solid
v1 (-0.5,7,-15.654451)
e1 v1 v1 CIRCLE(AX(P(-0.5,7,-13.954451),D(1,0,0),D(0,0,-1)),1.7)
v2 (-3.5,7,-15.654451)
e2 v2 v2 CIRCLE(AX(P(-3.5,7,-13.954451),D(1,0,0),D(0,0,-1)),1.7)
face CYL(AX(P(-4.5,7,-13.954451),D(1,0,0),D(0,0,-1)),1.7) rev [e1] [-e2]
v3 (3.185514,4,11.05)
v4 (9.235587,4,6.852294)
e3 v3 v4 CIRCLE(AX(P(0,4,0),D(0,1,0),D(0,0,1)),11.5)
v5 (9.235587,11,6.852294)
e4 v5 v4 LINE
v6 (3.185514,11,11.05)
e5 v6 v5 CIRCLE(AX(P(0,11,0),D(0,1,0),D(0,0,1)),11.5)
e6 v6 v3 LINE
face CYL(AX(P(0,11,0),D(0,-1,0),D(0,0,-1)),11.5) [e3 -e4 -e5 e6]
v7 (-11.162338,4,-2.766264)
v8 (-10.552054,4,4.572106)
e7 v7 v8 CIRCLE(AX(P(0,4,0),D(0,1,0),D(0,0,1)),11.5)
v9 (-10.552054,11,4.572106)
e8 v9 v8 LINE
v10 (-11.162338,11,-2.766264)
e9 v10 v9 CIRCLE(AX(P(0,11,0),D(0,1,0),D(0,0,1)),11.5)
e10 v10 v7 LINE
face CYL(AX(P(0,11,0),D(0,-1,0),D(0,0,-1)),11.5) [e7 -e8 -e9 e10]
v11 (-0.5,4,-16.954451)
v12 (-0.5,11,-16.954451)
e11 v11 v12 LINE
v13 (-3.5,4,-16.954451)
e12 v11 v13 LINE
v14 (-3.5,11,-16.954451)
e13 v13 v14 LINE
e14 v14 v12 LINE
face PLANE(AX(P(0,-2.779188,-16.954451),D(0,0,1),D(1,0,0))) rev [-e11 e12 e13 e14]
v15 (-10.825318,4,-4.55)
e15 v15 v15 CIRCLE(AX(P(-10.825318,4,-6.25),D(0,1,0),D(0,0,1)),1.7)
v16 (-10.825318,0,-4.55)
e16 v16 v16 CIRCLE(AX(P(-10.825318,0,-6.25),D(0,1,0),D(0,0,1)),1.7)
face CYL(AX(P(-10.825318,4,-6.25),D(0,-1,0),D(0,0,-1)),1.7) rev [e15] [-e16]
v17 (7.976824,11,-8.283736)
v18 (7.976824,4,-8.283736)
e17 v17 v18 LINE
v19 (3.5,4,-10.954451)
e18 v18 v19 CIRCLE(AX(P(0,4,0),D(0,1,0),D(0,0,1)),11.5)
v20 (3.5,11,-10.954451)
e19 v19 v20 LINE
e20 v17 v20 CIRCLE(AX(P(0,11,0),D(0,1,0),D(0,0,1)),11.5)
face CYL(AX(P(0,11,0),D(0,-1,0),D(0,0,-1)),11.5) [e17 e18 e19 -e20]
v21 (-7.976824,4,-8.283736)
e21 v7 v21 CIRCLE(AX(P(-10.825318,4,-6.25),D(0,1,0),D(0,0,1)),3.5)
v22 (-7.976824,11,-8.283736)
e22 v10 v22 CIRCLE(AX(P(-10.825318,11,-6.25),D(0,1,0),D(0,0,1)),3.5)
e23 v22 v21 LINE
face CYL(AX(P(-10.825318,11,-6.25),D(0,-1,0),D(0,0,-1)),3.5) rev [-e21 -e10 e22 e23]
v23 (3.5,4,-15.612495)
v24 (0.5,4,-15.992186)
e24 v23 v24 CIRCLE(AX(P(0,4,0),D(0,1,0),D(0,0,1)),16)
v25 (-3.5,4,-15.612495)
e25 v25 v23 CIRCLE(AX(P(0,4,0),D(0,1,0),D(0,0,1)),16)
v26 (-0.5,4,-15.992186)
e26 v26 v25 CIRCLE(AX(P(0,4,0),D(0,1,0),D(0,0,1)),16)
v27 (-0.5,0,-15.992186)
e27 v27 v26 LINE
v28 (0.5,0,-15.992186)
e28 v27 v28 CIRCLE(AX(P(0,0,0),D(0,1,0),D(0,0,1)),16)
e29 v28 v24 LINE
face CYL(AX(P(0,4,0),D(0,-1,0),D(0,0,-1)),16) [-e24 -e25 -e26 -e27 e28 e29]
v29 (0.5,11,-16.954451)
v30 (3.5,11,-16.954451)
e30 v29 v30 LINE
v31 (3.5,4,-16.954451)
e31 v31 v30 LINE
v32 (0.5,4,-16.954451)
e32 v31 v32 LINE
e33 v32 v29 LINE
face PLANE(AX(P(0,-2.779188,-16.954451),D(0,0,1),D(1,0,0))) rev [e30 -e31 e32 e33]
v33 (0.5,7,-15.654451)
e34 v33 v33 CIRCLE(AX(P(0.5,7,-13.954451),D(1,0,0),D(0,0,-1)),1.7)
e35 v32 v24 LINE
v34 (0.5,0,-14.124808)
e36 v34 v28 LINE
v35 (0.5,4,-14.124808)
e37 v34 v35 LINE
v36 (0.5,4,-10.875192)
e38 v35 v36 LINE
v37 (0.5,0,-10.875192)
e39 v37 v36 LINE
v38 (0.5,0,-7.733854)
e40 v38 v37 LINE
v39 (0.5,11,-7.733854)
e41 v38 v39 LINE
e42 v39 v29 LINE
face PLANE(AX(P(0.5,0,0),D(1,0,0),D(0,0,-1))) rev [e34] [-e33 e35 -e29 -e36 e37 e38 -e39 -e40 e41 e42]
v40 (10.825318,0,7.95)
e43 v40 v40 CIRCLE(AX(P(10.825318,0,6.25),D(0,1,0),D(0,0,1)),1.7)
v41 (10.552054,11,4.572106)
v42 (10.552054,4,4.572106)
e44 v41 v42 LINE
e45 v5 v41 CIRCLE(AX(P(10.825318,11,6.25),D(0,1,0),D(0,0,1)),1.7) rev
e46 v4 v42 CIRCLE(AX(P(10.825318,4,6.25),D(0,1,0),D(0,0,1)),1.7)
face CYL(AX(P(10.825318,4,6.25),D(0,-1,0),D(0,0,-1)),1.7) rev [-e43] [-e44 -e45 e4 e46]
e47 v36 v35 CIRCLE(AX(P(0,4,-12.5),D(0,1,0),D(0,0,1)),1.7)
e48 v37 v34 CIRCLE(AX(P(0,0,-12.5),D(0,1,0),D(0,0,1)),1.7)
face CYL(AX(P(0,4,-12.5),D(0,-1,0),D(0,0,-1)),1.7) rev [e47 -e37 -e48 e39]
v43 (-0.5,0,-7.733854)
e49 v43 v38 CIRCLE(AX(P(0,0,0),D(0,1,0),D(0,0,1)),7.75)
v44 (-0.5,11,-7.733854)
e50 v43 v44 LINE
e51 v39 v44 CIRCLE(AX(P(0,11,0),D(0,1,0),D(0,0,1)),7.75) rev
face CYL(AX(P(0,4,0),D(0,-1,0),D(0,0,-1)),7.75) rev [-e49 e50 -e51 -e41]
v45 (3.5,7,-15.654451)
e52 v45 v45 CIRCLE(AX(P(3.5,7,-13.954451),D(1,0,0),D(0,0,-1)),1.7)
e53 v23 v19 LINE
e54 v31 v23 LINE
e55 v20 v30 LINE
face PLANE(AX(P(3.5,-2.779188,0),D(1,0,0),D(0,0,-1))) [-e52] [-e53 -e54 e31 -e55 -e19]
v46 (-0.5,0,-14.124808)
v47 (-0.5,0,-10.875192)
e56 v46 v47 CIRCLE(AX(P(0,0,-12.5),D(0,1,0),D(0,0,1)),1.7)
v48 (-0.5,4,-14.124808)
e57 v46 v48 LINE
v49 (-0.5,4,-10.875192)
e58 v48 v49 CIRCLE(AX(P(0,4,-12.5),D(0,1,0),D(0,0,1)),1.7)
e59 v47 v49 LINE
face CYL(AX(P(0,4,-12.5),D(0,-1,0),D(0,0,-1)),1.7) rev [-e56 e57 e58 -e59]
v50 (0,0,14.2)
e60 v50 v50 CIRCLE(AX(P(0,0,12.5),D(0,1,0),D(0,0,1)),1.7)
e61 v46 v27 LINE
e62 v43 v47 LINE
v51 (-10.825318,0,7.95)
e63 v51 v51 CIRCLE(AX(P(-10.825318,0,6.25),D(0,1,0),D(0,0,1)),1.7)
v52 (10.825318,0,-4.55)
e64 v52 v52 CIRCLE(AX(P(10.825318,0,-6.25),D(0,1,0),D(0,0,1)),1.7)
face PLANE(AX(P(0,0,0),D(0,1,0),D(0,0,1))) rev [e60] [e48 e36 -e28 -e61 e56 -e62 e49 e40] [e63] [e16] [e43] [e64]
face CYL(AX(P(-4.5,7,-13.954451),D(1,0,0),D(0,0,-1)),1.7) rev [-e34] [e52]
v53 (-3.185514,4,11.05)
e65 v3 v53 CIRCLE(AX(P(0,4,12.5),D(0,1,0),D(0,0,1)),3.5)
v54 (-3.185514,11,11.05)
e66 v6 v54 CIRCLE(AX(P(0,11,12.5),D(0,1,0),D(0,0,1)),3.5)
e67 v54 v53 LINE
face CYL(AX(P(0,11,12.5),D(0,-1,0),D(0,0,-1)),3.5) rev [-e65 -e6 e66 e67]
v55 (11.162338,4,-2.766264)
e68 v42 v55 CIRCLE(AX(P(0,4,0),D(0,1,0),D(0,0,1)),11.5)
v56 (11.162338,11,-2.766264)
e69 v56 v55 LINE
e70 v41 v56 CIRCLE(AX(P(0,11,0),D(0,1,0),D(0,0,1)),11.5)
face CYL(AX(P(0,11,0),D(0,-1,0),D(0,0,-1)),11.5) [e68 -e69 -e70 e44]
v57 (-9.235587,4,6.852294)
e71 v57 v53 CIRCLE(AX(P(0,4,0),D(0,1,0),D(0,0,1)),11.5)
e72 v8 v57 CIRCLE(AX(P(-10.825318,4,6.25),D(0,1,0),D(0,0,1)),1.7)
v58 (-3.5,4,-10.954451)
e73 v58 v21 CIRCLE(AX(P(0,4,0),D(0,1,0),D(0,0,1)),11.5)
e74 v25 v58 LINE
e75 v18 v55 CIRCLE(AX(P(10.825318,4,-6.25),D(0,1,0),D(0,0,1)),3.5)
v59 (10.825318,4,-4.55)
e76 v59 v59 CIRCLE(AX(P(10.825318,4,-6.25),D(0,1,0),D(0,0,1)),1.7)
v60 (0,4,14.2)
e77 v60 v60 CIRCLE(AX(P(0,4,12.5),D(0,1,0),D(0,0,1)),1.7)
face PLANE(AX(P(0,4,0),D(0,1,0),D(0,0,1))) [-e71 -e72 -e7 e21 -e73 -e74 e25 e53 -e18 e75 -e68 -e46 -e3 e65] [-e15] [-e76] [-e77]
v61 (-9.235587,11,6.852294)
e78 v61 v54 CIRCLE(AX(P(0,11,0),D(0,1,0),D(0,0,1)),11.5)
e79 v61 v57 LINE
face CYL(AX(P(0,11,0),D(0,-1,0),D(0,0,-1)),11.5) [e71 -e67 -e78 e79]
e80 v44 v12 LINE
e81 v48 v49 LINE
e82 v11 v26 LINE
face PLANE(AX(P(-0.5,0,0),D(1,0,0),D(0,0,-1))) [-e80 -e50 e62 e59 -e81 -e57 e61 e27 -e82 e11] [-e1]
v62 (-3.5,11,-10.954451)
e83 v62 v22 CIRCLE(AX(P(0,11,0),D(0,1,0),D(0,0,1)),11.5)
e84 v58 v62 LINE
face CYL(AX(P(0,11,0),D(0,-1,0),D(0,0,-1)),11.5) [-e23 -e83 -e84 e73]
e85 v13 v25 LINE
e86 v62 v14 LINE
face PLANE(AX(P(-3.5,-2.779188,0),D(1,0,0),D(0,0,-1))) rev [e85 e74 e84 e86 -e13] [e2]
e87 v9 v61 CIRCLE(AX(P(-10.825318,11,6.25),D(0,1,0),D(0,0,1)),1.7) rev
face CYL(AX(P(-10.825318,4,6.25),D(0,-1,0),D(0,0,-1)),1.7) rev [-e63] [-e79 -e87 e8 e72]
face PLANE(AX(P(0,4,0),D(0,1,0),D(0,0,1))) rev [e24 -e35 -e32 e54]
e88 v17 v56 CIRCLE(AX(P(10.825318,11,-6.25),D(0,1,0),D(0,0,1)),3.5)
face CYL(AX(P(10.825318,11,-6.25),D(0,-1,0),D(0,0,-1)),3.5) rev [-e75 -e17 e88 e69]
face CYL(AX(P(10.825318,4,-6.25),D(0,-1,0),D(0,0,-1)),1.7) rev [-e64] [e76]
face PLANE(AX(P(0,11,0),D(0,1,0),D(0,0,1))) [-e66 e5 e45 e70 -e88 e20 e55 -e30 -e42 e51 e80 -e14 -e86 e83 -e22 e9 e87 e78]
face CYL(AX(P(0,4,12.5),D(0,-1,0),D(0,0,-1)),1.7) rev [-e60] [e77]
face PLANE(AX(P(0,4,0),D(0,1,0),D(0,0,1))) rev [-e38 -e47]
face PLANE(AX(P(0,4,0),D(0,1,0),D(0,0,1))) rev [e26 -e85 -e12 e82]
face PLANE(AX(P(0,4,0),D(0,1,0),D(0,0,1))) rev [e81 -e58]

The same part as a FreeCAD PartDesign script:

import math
import FreeCAD as App
import Part
import Sketcher

V = App.Vector

doc = App.newDocument("Part")
params = doc.addObject("Spreadsheet::Sheet", "Params")
for row, (alias, value) in enumerate([
    ("sketch1_diameter", "32 mm"),
    ("sketch1_diameter2", "3.4 mm"),
    ("sketch1_diameter3", "15.5 mm"),
    ("pad1_length", "4 mm"),
    ("sketch2_diameter", "15.5 mm"),
    ("sketch2_radius", "3.5 mm"),
    ("sketch2_radius2", "11.5 mm"),
    ("sketch2_radius3", "1.7 mm"),
    ("pad2_length", "7 mm"),
    ("sketch3_radius", "1.7 mm"),
    ("sketch3_width", "1 mm"),
    ("sketch3_radius2", "7.75 mm"),
    ("pocket1_length", "11 mm"),
    ("sketch4_radius", "11.5 mm"),
    ("sketch4_radius2", "1.7 mm"),
    ("sketch4_width", "3 mm"),
    ("sketch4_height", "6 mm"),
    ("pad3_length", "7 mm"),
    ("sketch5_diameter", "3.4 mm"),
    ("pocket2_length", "8 mm"),
], start=1):
    params.set(f"A{row}", alias)
    params.set(f"B{row}", "=" + value)
    params.setAlias(f"B{row}", alias)

body = doc.addObject("PartDesign::Body", "Body")

# Sketch on XZ plane
sketch1 = doc.addObject("Sketcher::SketchObject", "Sketch")
body.addObject(sketch1)
sketch1.AttachmentSupport = (doc.XZ_Plane, [""])
sketch1.MapMode = "FlatFace"
sketch1.addGeometry([
    Part.Circle(V(0, 0, 0), V(0, 0, 1), 16),  # 0
    Part.Circle(V(-10.825318, -6.25, 0), V(0, 0, 1), 1.7),  # 1
    Part.Circle(V(0, -12.5, 0), V(0, 0, 1), 1.7),  # 2
    Part.Circle(V(-10.825318, 6.25, 0), V(0, 0, 1), 1.7),  # 3
    Part.Circle(V(10.825318, -6.25, 0), V(0, 0, 1), 1.7),  # 4
    Part.Circle(V(0, 0, 0), V(0, 0, 1), 7.75),  # 5
    Part.Circle(V(0, 12.5, 0), V(0, 0, 1), 1.7),  # 6
    Part.Circle(V(10.825318, 6.25, 0), V(0, 0, 1), 1.7),  # 7
], False)
sketch1.addConstraint([
    Sketcher.Constraint("Coincident", 0, 3, -1, 1),
    Sketcher.Constraint("Coincident", 5, 3, -1, 1),
    Sketcher.Constraint("Equal", 1, 2),
    Sketcher.Constraint("Equal", 2, 3),
    Sketcher.Constraint("Equal", 3, 4),
    Sketcher.Constraint("Equal", 4, 6),
    Sketcher.Constraint("Equal", 6, 7),
    Sketcher.Constraint("Symmetric", 3, 3, 4, 3, -1, 1),
    Sketcher.Constraint("Symmetric", 2, 3, 6, 3, -1, 1),
    Sketcher.Constraint("Symmetric", 1, 3, 7, 3, -1, 1),
    Sketcher.Constraint("Symmetric", 1, 3, 4, 3, -2),
    Sketcher.Constraint("PointOnObject", 2, 3, -2),
    Sketcher.Constraint("Diameter", 0, 32.0),
    Sketcher.Constraint("Diameter", 1, 3.4),
    Sketcher.Constraint("Diameter", 5, 15.5),
    Sketcher.Constraint("DistanceY", 2, 3, -1, 1, 12.5),
    Sketcher.Constraint("DistanceY", 1, 3, 3, 3, 12.5),
    Sketcher.Constraint("DistanceX", 1, 3, -1, 1, 10.825318),
])
sketch1.setExpression("Constraints[12]", "Params.sketch1_diameter")
sketch1.setExpression("Constraints[13]", "Params.sketch1_diameter2")
sketch1.setExpression("Constraints[14]", "Params.sketch1_diameter3")
pad1 = doc.addObject("PartDesign::Pad", "Pad")
body.addObject(pad1)
pad1.Profile = sketch1
pad1.setExpression("Length", "Params.pad1_length")
pad1.Reversed = True

# Sketch on XZ plane
sketch2 = doc.addObject("Sketcher::SketchObject", "Sketch001")
body.addObject(sketch2)
sketch2.AttachmentSupport = (doc.XZ_Plane, [""])
sketch2.MapMode = "FlatFace"
sketch2.AttachmentOffset = App.Placement(V(0, 0, -4), App.Rotation())
sketch2.addGeometry([
    Part.ArcOfCircle(Part.Circle(V(0, 12.5, 0), V(0, 0, 1), 3.5), math.radians(-155.525657), math.radians(-24.474343)),  # 0
    Part.ArcOfCircle(Part.Circle(V(0, 0, 0), V(0, 0, 1), 11.5), math.radians(36.573366), math.radians(73.91869)),  # 1
    Part.ArcOfCircle(Part.Circle(V(10.825318, 6.25, 0), V(0, 0, 1), 1.7), math.radians(159.250041), math.radians(260.749959)),  # 2
    Part.ArcOfCircle(Part.Circle(V(0, 0, 0), V(0, 0, 1), 11.5), math.radians(0), math.radians(23.426634)),  # 3
    Part.ArcOfCircle(Part.Circle(V(0, 0, 0), V(0, 0, 1), 11.5), math.radians(-13.91869), math.radians(0)),  # 4
    Part.ArcOfCircle(Part.Circle(V(10.825318, -6.25, 0), V(0, 0, 1), 3.5), math.radians(84.474343), math.radians(215.525657)),  # 5
    Part.ArcOfCircle(Part.Circle(V(0, 0, 0), V(0, 0, 1), 11.5), math.radians(-83.426634), math.radians(-46.08131)),  # 6
    Part.ArcOfCircle(Part.Circle(V(0, -12.5, 0), V(0, 0, 1), 1.7), math.radians(39.250041), math.radians(140.749959)),  # 7
    Part.ArcOfCircle(Part.Circle(V(0, 0, 0), V(0, 0, 1), 11.5), math.radians(-133.91869), math.radians(-96.573366)),  # 8
    Part.ArcOfCircle(Part.Circle(V(-10.825318, -6.25, 0), V(0, 0, 1), 3.5), math.radians(-35.525657), math.radians(0)),  # 9
    Part.ArcOfCircle(Part.Circle(V(-10.825318, -6.25, 0), V(0, 0, 1), 3.5), math.radians(0), math.radians(95.525657)),  # 10
    Part.ArcOfCircle(Part.Circle(V(0, 0, 0), V(0, 0, 1), 11.5), math.radians(156.573366), math.radians(193.91869)),  # 11
    Part.ArcOfCircle(Part.Circle(V(-10.825318, 6.25, 0), V(0, 0, 1), 1.7), math.radians(-80.749959), math.radians(0)),  # 12
    Part.ArcOfCircle(Part.Circle(V(-10.825318, 6.25, 0), V(0, 0, 1), 1.7), math.radians(0), math.radians(20.749959)),  # 13
    Part.ArcOfCircle(Part.Circle(V(0, 0, 0), V(0, 0, 1), 11.5), math.radians(106.08131), math.radians(143.426634)),  # 14
    Part.Circle(V(0, 0, 0), V(0, 0, 1), 7.75),  # 15
], False)
sketch2.addConstraint([
    Sketcher.Constraint("Coincident", 0, 2, 1, 2),
    Sketcher.Constraint("Coincident", 1, 1, 2, 1),
    Sketcher.Constraint("Coincident", 2, 2, 3, 2),
    Sketcher.Constraint("Tangent", 3, 1, 4, 2),
    Sketcher.Constraint("Coincident", 4, 1, 5, 1),
    Sketcher.Constraint("Coincident", 5, 2, 6, 2),
    Sketcher.Constraint("Coincident", 6, 1, 7, 1),
    Sketcher.Constraint("Coincident", 7, 2, 8, 2),
    Sketcher.Constraint("Coincident", 8, 1, 9, 1),
    Sketcher.Constraint("Tangent", 9, 2, 10, 1),
    Sketcher.Constraint("Coincident", 10, 2, 11, 2),
    Sketcher.Constraint("Coincident", 11, 1, 12, 1),
    Sketcher.Constraint("Tangent", 12, 2, 13, 1),
    Sketcher.Constraint("Coincident", 13, 2, 14, 2),
    Sketcher.Constraint("Coincident", 14, 1, 0, 1),
    Sketcher.Constraint("Coincident", 1, 3, -1, 1),
    Sketcher.Constraint("Coincident", 3, 3, -1, 1),
    Sketcher.Constraint("Coincident", 6, 3, -1, 1),
    Sketcher.Constraint("Coincident", 8, 3, -1, 1),
    Sketcher.Constraint("Coincident", 11, 3, -1, 1),
    Sketcher.Constraint("Coincident", 14, 3, -1, 1),
    Sketcher.Constraint("Coincident", 15, 3, -1, 1),
    Sketcher.Constraint("Equal", 1, 3),
    Sketcher.Constraint("Equal", 3, 4),
    Sketcher.Constraint("Equal", 0, 5),
    Sketcher.Constraint("Equal", 4, 6),
    Sketcher.Constraint("Equal", 2, 7),
    Sketcher.Constraint("Equal", 6, 8),
    Sketcher.Constraint("Equal", 5, 9),
    Sketcher.Constraint("Equal", 9, 10),
    Sketcher.Constraint("Equal", 8, 11),
    Sketcher.Constraint("Equal", 7, 12),
    Sketcher.Constraint("Equal", 12, 13),
    Sketcher.Constraint("Equal", 11, 14),
    Sketcher.Constraint("Symmetric", 0, 3, 7, 3, -1, 1),
    Sketcher.Constraint("Symmetric", 2, 3, 9, 3, -1, 1),
    Sketcher.Constraint("Symmetric", 5, 3, 12, 3, -1, 1),
    Sketcher.Constraint("Symmetric", 5, 3, 9, 3, -2),
    Sketcher.Constraint("PointOnObject", 0, 3, -2),
    Sketcher.Constraint("PointOnObject", 3, 1, -1),
    Sketcher.Constraint("Horizontal", 10, 3, 9, 2),
    Sketcher.Constraint("Horizontal", 13, 3, 12, 2),
    Sketcher.Constraint("Diameter", 15, 15.5),
    Sketcher.Constraint("Radius", 0, 3.5),
    Sketcher.Constraint("Radius", 1, 11.5),
    Sketcher.Constraint("Radius", 2, 1.7),
    Sketcher.Constraint("DistanceY", -1, 1, 0, 3, 12.5),
    Sketcher.Constraint("DistanceY", 5, 3, 2, 3, 12.5),
    Sketcher.Constraint("DistanceX", 1, 1, 2, 3, 1.58973),
])
sketch2.setExpression("Constraints[42]", "Params.sketch2_diameter")
sketch2.setExpression("Constraints[43]", "Params.sketch2_radius")
sketch2.setExpression("Constraints[44]", "Params.sketch2_radius2")
sketch2.setExpression("Constraints[45]", "Params.sketch2_radius3")
pad2 = doc.addObject("PartDesign::Pad", "Pad001")
body.addObject(pad2)
pad2.Profile = sketch2
pad2.setExpression("Length", "Params.pad2_length")
pad2.Reversed = True

# Sketch on XZ plane
sketch3 = doc.addObject("Sketcher::SketchObject", "Sketch002")
body.addObject(sketch3)
sketch3.AttachmentSupport = (doc.XZ_Plane, [""])
sketch3.MapMode = "FlatFace"
sketch3.addGeometry([
    Part.LineSegment(V(0.5, 7.733854, 0), V(0.5, -10.875192, 0)),  # 0
    Part.ArcOfCircle(Part.Circle(V(0, -12.5, 0), V(0, 0, 1), 1.7), math.radians(72.895365), math.radians(107.104635)),  # 1
    Part.LineSegment(V(-0.5, -10.875192, 0), V(-0.5, 7.733854, 0)),  # 2
    Part.ArcOfCircle(Part.Circle(V(0, 0, 0), V(0, 0, 1), 7.75), math.radians(86.300929), math.radians(93.699071)),  # 3
    Part.LineSegment(V(-0.5, -25, 0), V(-0.5, -10.954451, 0)),  # 4
    Part.LineSegment(V(-0.5, -10.954451, 0), V(0.5, -10.954451, 0)),  # 5
    Part.LineSegment(V(0.5, -10.954451, 0), V(0.5, -25, 0)),  # 6
    Part.LineSegment(V(0.5, -25, 0), V(-0.5, -25, 0)),  # 7
], False)
sketch3.addConstraint([
    Sketcher.Constraint("Coincident", 0, 2, 1, 1),
    Sketcher.Constraint("Coincident", 1, 2, 2, 1),
    Sketcher.Constraint("Coincident", 2, 2, 3, 2),
    Sketcher.Constraint("Coincident", 3, 1, 0, 1),
    Sketcher.Constraint("Coincident", 4, 2, 5, 1),
    Sketcher.Constraint("Coincident", 5, 2, 6, 1),
    Sketcher.Constraint("Coincident", 6, 2, 7, 1),
    Sketcher.Constraint("Coincident", 7, 2, 4, 1),
    Sketcher.Constraint("Vertical", 0),
    Sketcher.Constraint("Vertical", 2),
    Sketcher.Constraint("Vertical", 4),
    Sketcher.Constraint("Horizontal", 5),
    Sketcher.Constraint("Vertical", 6),
    Sketcher.Constraint("Horizontal", 7),
    Sketcher.Constraint("Coincident", 3, 3, -1, 1),
    Sketcher.Constraint("Symmetric", 0, 2, 1, 2, -2),
    Sketcher.Constraint("Vertical", 2, 2, 4, 2),
    Sketcher.Constraint("Vertical", 3, 1, 5, 2),
    Sketcher.Constraint("Radius", 1, 1.7),
    Sketcher.Constraint("DistanceX", 5, 1, 5, 2, 1.0),
    Sketcher.Constraint("Radius", 3, 7.75),
    Sketcher.Constraint("DistanceY", 6, 2, -1, 1, 25.0),
    Sketcher.Constraint("DistanceY", 1, 3, -1, 1, 12.5),
    Sketcher.Constraint("DistanceY", 4, 1, 4, 2, 14.045549),
])
sketch3.setExpression("Constraints[18]", "Params.sketch3_radius")
sketch3.setExpression("Constraints[19]", "Params.sketch3_width")
sketch3.setExpression("Constraints[20]", "Params.sketch3_radius2")
pocket1 = doc.addObject("PartDesign::Pocket", "Pocket")
body.addObject(pocket1)
pocket1.Profile = sketch3
pocket1.setExpression("Length", "Params.pocket1_length")

# Sketch on XZ plane
sketch4 = doc.addObject("Sketcher::SketchObject", "Sketch003")
body.addObject(sketch4)
sketch4.AttachmentSupport = (doc.XZ_Plane, [""])
sketch4.MapMode = "FlatFace"
sketch4.AttachmentOffset = App.Placement(V(0, 0, -4), App.Rotation())
sketch4.addGeometry([
    Part.LineSegment(V(-0.5, -16.954451, 0), V(-3.5, -16.954451, 0)),  # 0
    Part.LineSegment(V(-3.5, -16.954451, 0), V(-3.5, -10.954451, 0)),  # 1
    Part.ArcOfCircle(Part.Circle(V(0, 0, 0), V(0, 0, 1), 11.5), math.radians(-107.718932), math.radians(-96.573366)),  # 2
    Part.ArcOfCircle(Part.Circle(V(0, -12.5, 0), V(0, 0, 1), 1.7), math.radians(114.612347), math.radians(140.749959)),  # 3
    Part.ArcOfCircle(Part.Circle(V(0, -12.5, 0), V(0, 0, 1), 1.7), math.radians(107.104635), math.radians(114.612347)),  # 4
    Part.LineSegment(V(-0.5, -10.875192, 0), V(-0.5, -16.954451, 0)),  # 5
    Part.LineSegment(V(0.5, -16.954451, 0), V(0.5, -10.875192, 0)),  # 6
    Part.ArcOfCircle(Part.Circle(V(0, -12.5, 0), V(0, 0, 1), 1.7), math.radians(65.387653), math.radians(72.895365)),  # 7
    Part.ArcOfCircle(Part.Circle(V(0, -12.5, 0), V(0, 0, 1), 1.7), math.radians(39.250041), math.radians(65.387653)),  # 8
    Part.ArcOfCircle(Part.Circle(V(0, 0, 0), V(0, 0, 1), 11.5), math.radians(-83.426634), math.radians(-72.281068)),  # 9
    Part.LineSegment(V(3.5, -10.954451, 0), V(3.5, -16.954451, 0)),  # 10
    Part.LineSegment(V(3.5, -16.954451, 0), V(0.5, -16.954451, 0)),  # 11
], False)
sketch4.addConstraint([
    Sketcher.Constraint("Coincident", 0, 2, 1, 1),
    Sketcher.Constraint("Coincident", 1, 2, 2, 1),
    Sketcher.Constraint("Coincident", 2, 2, 3, 2),
    Sketcher.Constraint("Tangent", 3, 1, 4, 2),
    Sketcher.Constraint("Coincident", 4, 1, 5, 1),
    Sketcher.Constraint("Coincident", 5, 2, 0, 1),
    Sketcher.Constraint("Coincident", 6, 2, 7, 2),
    Sketcher.Constraint("Tangent", 7, 1, 8, 2),
    Sketcher.Constraint("Coincident", 8, 1, 9, 1),
    Sketcher.Constraint("Coincident", 9, 2, 10, 1),
    Sketcher.Constraint("Coincident", 10, 2, 11, 1),
    Sketcher.Constraint("Coincident", 11, 2, 6, 1),
    Sketcher.Constraint("Horizontal", 0),
    Sketcher.Constraint("Vertical", 1),
    Sketcher.Constraint("Vertical", 5),
    Sketcher.Constraint("Vertical", 6),
    Sketcher.Constraint("Vertical", 10),
    Sketcher.Constraint("Horizontal", 11),
    Sketcher.Constraint("Coincident", 2, 3, -1, 1),
    Sketcher.Constraint("Coincident", 9, 3, -1, 1),
    Sketcher.Constraint("Coincident", 7, 3, 3, 3),
    Sketcher.Constraint("Equal", 3, 4),
    Sketcher.Constraint("Equal", 4, 7),
    Sketcher.Constraint("Equal", 7, 8),
    Sketcher.Constraint("Equal", 2, 9),
    Sketcher.Constraint("Symmetric", 4, 1, 6, 2, -2),
    Sketcher.Constraint("Symmetric", 0, 2, 10, 2, -2),
    Sketcher.Constraint("Horizontal", 1, 2, 3, 1),
    Sketcher.Constraint("Horizontal", 3, 1, 7, 1),
    Sketcher.Constraint("Radius", 2, 11.5),
    Sketcher.Constraint("Radius", 3, 1.7),
    Sketcher.Constraint("DistanceX", 0, 2, 0, 1, 3.0),
    Sketcher.Constraint("DistanceY", 1, 1, 1, 2, 6.0),
    Sketcher.Constraint("DistanceX", 4, 1, 6, 2, 1.0),
    Sketcher.Constraint("DistanceY", 3, 3, -1, 1, 12.5),
])
sketch4.setExpression("Constraints[29]", "Params.sketch4_radius")
sketch4.setExpression("Constraints[30]", "Params.sketch4_radius2")
sketch4.setExpression("Constraints[31]", "Params.sketch4_width")
sketch4.setExpression("Constraints[32]", "Params.sketch4_height")
pad3 = doc.addObject("PartDesign::Pad", "Pad002")
body.addObject(pad3)
pad3.Profile = sketch4
pad3.setExpression("Length", "Params.pad3_length")
pad3.Reversed = True

# Sketch on YZ plane
sketch5 = doc.addObject("Sketcher::SketchObject", "Sketch004")
body.addObject(sketch5)
sketch5.AttachmentSupport = (doc.YZ_Plane, [""])
sketch5.MapMode = "FlatFace"
sketch5.AttachmentOffset = App.Placement(V(0, 0, 3.5), App.Rotation())
sketch5.addGeometry(Part.Circle(V(7, -13.954451, 0), V(0, 0, 1), 1.7), False)
sketch5.addConstraint([
    Sketcher.Constraint("Diameter", 0, 3.4),
    Sketcher.Constraint("DistanceX", -1, 1, 0, 3, 7.0),
    Sketcher.Constraint("DistanceY", 0, 3, -1, 1, 13.954451),
])
sketch5.setExpression("Constraints[0]", "Params.sketch5_diameter")
pocket2 = doc.addObject("PartDesign::Pocket", "Pocket001")
body.addObject(pocket2)
pocket2.Profile = sketch5
pocket2.setExpression("Length", "Params.pocket2_length")

doc.recompute()
